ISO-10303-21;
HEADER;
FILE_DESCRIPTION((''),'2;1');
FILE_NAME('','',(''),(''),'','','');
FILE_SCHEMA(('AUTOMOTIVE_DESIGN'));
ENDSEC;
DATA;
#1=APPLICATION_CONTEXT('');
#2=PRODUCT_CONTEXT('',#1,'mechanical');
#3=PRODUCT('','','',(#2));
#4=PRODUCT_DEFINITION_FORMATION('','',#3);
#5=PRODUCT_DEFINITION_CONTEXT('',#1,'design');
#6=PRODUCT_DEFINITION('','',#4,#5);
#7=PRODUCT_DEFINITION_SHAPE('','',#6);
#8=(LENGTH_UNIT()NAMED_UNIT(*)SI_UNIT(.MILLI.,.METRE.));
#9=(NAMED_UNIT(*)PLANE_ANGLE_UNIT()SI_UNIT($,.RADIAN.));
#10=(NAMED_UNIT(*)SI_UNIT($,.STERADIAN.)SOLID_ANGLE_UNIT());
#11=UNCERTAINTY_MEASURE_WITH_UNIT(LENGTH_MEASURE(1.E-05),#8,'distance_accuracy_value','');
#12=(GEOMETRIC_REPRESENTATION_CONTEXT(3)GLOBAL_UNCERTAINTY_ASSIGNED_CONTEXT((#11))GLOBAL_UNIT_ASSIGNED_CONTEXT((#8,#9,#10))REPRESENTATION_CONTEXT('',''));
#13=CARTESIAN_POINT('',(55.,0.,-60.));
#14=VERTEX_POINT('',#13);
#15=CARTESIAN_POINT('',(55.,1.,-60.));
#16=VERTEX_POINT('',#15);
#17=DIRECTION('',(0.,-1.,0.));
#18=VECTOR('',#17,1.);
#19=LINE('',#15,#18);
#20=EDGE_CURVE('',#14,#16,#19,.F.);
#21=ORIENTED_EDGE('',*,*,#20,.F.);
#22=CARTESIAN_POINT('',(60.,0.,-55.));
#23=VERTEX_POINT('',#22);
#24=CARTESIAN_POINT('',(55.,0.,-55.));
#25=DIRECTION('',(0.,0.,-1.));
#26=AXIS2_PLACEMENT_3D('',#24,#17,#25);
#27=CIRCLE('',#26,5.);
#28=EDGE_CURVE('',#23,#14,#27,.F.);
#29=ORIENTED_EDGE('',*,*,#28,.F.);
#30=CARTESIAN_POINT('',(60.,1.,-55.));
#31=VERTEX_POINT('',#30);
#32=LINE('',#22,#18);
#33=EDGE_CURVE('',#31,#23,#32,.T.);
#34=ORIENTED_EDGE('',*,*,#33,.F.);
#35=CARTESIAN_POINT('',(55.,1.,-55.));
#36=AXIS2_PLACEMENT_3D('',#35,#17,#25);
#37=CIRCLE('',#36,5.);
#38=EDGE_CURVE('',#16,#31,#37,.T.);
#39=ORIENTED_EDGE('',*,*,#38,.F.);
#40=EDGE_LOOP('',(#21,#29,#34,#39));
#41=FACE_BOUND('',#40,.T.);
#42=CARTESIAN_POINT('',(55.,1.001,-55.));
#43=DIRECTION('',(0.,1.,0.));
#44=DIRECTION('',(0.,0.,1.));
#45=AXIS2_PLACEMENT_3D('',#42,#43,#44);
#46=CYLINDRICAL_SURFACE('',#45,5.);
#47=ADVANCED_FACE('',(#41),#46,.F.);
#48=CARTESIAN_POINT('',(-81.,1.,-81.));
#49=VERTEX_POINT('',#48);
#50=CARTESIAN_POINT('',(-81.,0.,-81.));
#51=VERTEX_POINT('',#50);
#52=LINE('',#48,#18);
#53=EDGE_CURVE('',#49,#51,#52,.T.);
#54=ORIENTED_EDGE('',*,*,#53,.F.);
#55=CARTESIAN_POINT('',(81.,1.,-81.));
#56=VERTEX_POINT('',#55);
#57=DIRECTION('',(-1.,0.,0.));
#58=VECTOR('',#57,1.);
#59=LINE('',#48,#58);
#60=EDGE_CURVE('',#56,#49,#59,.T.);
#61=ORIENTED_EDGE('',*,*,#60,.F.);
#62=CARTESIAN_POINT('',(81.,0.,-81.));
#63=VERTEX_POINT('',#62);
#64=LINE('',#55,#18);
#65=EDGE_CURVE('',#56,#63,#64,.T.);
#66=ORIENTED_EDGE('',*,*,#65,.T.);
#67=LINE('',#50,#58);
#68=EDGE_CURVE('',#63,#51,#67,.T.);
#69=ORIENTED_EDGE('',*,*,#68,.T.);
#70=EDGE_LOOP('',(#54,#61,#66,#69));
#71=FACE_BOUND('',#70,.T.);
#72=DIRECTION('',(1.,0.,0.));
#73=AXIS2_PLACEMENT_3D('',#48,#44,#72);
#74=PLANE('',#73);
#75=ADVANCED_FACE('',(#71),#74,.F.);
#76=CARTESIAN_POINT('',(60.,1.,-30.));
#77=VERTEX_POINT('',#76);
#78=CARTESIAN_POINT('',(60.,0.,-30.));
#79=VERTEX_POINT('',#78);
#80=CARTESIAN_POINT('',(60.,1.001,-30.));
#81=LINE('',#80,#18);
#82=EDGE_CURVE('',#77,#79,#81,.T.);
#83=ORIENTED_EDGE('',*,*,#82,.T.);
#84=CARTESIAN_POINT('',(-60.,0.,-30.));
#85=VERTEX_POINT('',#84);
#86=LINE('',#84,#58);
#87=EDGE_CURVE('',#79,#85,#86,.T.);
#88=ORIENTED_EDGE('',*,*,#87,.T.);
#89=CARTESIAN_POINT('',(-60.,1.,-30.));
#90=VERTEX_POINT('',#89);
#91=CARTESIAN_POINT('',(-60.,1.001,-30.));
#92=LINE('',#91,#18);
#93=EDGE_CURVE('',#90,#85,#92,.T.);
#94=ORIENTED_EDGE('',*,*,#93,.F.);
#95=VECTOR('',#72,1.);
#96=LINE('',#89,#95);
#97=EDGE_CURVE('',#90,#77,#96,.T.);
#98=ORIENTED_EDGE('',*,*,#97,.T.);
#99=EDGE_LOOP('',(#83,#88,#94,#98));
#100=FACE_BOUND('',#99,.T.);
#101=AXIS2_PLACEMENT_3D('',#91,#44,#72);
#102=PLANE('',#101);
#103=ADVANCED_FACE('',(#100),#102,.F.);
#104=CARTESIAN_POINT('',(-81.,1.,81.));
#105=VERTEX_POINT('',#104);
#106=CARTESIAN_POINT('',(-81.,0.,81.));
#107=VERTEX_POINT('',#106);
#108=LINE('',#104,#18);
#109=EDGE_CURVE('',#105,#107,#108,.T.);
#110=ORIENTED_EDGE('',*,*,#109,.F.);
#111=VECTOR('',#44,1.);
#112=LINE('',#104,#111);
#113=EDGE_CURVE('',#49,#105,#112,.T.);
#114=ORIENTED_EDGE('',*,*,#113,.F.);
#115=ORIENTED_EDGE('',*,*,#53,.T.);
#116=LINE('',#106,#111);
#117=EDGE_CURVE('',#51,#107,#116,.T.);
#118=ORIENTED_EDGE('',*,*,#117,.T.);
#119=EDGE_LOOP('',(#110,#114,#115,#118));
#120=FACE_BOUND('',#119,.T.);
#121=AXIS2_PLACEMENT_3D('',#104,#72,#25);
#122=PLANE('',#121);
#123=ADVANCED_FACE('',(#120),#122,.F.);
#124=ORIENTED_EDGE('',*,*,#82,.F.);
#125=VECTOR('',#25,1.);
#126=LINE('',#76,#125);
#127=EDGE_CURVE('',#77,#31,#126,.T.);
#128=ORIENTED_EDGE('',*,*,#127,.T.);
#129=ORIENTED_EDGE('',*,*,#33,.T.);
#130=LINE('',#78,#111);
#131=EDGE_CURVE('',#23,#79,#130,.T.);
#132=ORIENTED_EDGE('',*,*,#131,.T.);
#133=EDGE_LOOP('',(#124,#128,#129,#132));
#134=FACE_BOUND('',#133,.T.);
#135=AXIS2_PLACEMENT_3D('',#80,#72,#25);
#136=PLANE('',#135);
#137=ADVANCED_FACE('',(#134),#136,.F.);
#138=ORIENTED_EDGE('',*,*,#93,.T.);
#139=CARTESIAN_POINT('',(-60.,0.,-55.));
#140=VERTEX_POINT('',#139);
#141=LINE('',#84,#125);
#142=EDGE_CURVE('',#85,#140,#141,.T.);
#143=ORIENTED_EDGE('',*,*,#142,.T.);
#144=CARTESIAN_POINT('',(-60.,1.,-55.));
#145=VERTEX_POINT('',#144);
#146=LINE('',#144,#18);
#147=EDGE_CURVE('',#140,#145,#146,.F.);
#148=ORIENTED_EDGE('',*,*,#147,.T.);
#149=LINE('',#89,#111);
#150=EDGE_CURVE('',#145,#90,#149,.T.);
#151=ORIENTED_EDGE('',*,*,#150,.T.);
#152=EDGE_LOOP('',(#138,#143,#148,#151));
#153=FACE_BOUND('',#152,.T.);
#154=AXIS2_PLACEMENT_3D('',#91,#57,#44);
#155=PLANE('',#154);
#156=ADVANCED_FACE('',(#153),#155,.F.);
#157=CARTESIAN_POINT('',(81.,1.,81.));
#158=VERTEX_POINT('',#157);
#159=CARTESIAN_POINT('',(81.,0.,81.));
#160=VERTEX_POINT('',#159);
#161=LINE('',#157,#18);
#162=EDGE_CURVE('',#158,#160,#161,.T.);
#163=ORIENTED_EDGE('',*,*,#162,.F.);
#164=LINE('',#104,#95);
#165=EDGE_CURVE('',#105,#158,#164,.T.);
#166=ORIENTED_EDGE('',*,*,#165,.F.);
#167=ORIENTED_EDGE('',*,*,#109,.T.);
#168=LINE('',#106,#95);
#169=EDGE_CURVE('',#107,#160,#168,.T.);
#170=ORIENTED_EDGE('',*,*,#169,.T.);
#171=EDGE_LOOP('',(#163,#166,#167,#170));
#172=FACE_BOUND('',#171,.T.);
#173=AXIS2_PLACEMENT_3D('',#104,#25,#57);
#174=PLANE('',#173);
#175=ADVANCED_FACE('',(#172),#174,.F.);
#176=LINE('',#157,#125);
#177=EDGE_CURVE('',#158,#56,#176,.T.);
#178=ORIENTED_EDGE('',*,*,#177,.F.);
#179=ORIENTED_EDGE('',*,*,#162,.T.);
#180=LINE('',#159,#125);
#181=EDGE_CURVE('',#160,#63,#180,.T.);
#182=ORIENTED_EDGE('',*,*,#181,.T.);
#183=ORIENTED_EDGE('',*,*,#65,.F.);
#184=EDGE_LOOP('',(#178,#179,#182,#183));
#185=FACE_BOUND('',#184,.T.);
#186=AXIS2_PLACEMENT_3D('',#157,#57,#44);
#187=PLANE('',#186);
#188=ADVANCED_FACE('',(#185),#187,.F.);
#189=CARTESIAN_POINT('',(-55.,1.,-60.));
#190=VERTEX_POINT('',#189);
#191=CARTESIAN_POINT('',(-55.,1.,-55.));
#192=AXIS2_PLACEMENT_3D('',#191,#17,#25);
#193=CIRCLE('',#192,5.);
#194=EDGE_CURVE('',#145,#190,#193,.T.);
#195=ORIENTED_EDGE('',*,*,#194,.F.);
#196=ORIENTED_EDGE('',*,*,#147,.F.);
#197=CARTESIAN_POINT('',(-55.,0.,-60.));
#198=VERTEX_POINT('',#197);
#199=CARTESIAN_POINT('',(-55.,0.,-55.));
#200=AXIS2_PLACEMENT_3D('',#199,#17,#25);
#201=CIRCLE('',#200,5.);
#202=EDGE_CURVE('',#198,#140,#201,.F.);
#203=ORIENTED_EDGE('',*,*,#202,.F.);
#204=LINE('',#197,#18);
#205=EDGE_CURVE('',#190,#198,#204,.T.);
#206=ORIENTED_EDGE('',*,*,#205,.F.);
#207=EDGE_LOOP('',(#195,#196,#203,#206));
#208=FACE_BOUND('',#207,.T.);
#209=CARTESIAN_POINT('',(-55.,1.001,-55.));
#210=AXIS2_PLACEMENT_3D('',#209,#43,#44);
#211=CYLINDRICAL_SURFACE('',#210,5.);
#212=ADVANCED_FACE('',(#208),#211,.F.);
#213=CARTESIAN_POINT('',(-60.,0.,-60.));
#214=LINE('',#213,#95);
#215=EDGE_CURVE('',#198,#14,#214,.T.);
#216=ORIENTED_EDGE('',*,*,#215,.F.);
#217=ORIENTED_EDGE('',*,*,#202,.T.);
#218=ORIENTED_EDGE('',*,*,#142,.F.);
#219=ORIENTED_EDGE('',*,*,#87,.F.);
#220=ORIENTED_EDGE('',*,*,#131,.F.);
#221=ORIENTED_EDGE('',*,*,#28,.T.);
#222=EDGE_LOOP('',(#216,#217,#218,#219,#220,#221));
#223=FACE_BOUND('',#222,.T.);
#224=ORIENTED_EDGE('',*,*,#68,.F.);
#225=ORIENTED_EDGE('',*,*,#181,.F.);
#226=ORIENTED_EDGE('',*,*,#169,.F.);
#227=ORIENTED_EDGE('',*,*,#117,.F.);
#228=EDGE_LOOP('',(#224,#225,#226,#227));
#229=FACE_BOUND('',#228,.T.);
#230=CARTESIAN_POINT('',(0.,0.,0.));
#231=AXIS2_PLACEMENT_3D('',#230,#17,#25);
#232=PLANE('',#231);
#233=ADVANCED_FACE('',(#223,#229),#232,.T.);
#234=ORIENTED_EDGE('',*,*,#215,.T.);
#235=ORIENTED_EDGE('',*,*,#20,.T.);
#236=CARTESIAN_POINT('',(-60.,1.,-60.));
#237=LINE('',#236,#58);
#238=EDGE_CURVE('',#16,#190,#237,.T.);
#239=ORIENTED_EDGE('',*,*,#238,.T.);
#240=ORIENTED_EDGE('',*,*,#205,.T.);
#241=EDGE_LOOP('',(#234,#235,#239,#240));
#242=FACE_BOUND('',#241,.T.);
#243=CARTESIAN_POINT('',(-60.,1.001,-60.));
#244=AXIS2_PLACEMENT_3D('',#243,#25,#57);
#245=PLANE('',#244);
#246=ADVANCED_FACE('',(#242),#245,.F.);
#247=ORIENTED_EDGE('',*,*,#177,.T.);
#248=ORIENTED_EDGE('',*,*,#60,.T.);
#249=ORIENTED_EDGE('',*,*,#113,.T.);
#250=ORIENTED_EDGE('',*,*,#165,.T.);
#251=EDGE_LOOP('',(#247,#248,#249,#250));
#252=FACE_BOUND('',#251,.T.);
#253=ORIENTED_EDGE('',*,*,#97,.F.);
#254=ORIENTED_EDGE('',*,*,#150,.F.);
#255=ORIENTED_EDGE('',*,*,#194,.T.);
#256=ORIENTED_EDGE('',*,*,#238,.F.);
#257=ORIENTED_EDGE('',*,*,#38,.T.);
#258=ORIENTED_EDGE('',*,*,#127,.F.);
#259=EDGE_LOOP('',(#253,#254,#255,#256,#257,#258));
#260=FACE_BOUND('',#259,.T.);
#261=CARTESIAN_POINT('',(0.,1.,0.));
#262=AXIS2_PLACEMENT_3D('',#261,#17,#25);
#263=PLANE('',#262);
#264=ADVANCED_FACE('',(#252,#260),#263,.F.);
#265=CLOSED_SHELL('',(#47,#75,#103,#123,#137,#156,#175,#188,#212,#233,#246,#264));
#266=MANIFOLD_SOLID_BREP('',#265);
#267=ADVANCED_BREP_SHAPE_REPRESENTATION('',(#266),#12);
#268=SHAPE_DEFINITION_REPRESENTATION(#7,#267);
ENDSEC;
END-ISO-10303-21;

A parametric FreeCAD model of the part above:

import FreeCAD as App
import Part
import Sketcher

V = App.Vector


def edges_at(feature, points):
    """Names of the edges that pass closest to the given points."""
    edges = feature.Shape.Edges
    near = lambda p: min(range(len(edges)), key=lambda i: edges[i].distToShape(Part.Vertex(*p))[0])
    return sorted({f"Edge{near(p) + 1}" for p in points})


def add_polygon(sketch, points):
    """Adds a closed chain of lines whose ends are joined by coincident constraints."""
    first, n = sketch.GeometryCount, len(points)
    for a, b in zip(points, points[1:] + points[:1]):
        sketch.addGeometry(Part.LineSegment(App.Vector(*a, 0), App.Vector(*b, 0)), False)
    for i in range(n):
        sketch.addConstraint(Sketcher.Constraint("Coincident", first + i, 2, first + (i + 1) % n, 1))

doc = App.newDocument("Part")
body = doc.addObject("PartDesign::Body", "Body")

sketch1 = doc.addObject("Sketcher::SketchObject", "Sketch")
body.addObject(sketch1)
sketch1.AttachmentSupport = (doc.XZ_Plane, [""])
sketch1.MapMode = "FlatFace"
add_polygon(sketch1, [(-81, -81), (-81, 81), (81, 81), (81, -81)])
sketch1.addConstraint([
    Sketcher.Constraint("Vertical", 0),
    Sketcher.Constraint("Horizontal", 1),
    Sketcher.Constraint("Vertical", 2),
    Sketcher.Constraint("Horizontal", 3),
    Sketcher.Constraint("Symmetric", 0, 2, 2, 2, -1, 1),
    Sketcher.Constraint("Equal", 3, 0),
    Sketcher.Constraint("DistanceX", 1, 1, 1, 2, 162.0),
])
pad1 = doc.addObject("PartDesign::Pad", "Pad")
body.addObject(pad1)
pad1.Profile = sketch1
pad1.Length = 1
pad1.Reversed = True

sketch2 = doc.addObject("Sketcher::SketchObject", "Sketch001")
body.addObject(sketch2)
sketch2.AttachmentSupport = (doc.XZ_Plane, [""])
sketch2.MapMode = "FlatFace"
add_polygon(sketch2, [(-60, -30), (-60, -60), (60, -60), (60, -30)])
sketch2.addConstraint([
    Sketcher.Constraint("Vertical", 0),
    Sketcher.Constraint("Horizontal", 1),
    Sketcher.Constraint("Vertical", 2),
    Sketcher.Constraint("Horizontal", 3),
    Sketcher.Constraint("DistanceX", 1, 1, 1, 2, 120.0),
    Sketcher.Constraint("DistanceY", 0, 2, 0, 1, 30.0),
    Sketcher.Constraint("DistanceX", 0, 2, -1, 1, 60.0),
    Sketcher.Constraint("DistanceY", 0, 2, -1, 1, 60.0),
])
pocket1 = doc.addObject("PartDesign::Pocket", "Pocket")
body.addObject(pocket1)
pocket1.Profile = sketch2
pocket1.Type = "UpToFirst"
doc.recompute()

fillet = doc.addObject("PartDesign::Fillet", "Fillet")
body.addObject(fillet)
fillet.Base = (pocket1, edges_at(pocket1, [(60, 0.5, -60), (-60, 0.5, -60)]))
fillet.Radius = 5

doc.recompute()
